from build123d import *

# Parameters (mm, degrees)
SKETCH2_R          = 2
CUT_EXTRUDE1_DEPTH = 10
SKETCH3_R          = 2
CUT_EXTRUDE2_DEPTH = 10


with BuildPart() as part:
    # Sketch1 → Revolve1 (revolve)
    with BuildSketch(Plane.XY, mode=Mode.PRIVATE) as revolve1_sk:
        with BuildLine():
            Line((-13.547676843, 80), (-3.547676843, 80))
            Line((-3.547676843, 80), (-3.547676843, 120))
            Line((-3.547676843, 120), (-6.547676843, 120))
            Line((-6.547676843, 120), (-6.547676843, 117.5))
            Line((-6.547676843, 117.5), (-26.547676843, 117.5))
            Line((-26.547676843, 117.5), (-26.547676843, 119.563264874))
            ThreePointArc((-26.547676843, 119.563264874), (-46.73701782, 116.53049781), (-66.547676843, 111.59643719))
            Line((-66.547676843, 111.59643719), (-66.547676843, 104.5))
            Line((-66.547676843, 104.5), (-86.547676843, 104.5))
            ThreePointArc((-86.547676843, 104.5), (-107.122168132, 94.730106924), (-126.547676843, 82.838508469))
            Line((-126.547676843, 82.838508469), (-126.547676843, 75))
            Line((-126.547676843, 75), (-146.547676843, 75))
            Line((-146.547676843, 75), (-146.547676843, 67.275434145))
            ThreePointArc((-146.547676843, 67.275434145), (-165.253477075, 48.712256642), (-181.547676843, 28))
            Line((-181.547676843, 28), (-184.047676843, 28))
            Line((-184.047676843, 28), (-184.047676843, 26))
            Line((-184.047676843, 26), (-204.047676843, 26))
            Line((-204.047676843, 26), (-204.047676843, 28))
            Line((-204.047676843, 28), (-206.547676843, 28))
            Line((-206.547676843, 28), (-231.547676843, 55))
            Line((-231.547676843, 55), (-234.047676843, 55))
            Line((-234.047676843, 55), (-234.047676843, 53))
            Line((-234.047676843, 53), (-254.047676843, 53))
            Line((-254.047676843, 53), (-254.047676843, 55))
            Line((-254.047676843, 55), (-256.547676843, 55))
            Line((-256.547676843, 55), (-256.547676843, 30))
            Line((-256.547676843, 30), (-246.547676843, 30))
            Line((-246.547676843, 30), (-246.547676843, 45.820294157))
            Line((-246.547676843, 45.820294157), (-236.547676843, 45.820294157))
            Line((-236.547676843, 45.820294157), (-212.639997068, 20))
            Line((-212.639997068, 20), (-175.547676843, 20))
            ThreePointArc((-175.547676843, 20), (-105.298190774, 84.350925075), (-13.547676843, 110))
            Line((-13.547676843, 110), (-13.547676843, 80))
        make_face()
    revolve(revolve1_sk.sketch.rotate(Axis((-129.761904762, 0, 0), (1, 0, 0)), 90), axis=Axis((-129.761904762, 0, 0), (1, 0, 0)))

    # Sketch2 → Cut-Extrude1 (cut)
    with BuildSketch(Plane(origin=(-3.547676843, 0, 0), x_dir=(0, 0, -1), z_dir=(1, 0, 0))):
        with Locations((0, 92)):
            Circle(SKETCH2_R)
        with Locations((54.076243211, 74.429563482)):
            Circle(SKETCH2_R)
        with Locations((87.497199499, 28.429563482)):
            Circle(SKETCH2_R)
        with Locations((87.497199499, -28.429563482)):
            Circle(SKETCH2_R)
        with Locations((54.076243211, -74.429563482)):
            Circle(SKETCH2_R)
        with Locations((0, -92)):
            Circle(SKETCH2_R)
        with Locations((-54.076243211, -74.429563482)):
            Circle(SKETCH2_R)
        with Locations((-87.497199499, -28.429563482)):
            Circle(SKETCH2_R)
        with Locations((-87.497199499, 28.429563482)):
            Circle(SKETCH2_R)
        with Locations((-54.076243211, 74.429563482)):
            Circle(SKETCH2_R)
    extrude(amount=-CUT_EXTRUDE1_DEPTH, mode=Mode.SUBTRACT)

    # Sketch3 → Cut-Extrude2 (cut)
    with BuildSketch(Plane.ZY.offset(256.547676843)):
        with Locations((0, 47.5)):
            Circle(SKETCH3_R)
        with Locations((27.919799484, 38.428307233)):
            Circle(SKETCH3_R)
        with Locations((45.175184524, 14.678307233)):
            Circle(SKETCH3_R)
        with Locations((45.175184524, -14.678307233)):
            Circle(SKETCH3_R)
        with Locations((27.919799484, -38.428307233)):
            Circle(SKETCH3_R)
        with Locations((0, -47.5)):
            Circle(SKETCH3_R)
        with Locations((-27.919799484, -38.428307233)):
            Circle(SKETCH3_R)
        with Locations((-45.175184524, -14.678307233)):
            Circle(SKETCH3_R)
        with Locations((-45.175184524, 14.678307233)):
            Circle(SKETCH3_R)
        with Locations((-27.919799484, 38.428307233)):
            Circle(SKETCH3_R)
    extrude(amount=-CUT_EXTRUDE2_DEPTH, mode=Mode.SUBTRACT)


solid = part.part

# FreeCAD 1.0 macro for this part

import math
import FreeCAD as App
import Part
import Sketcher

doc = App.newDocument("Part")
body = doc.addObject("PartDesign::Body", "Body")

sketch1 = body.newObject("Sketcher::SketchObject", "Sketch")
sketch1.AttachmentSupport = (doc.getObject("XY_Plane"), [""])
sketch1.MapMode = "FlatFace"
sketch1.addGeometry(Part.LineSegment(App.Vector(-13.5, 80, 0), App.Vector(-3.5, 80, 0)), False)
sketch1.addGeometry(Part.LineSegment(App.Vector(-3.5, 80, 0), App.Vector(-3.5, 120, 0)), False)
sketch1.addGeometry(Part.LineSegment(App.Vector(-3.5, 120, 0), App.Vector(-6.5, 120, 0)), False)
sketch1.addGeometry(Part.LineSegment(App.Vector(-6.5, 120, 0), App.Vector(-6.5, 117.5, 0)), False)
sketch1.addGeometry(Part.LineSegment(App.Vector(-6.5, 117.5, 0), App.Vector(-26.5, 117.5, 0)), False)
sketch1.addGeometry(Part.LineSegment(App.Vector(-26.5, 117.5, 0), App.Vector(-26.5, 119.6, 0)), False)
sketch1.addGeometry(Part.ArcOfCircle(Part.Circle(App.Vector(-4.7, -94.3, 0), App.Vector(0, 0, 1), 215), math.radians(95.82), math.radians(106.71)), False)
sketch1.addGeometry(Part.LineSegment(App.Vector(-66.5, 111.6, 0), App.Vector(-66.5, 104.5, 0)), False)
sketch1.addGeometry(Part.LineSegment(App.Vector(-66.5, 104.5, 0), App.Vector(-86.5, 104.5, 0)), False)
sketch1.addGeometry(Part.ArcOfCircle(Part.Circle(App.Vector(-4.7, -94.3, 0), App.Vector(0, 0, 1), 215), math.radians(112.36), math.radians(124.51)), False)
sketch1.addGeometry(Part.LineSegment(App.Vector(-126.5, 82.8, 0), App.Vector(-126.5, 75, 0)), False)
sketch1.addGeometry(Part.LineSegment(App.Vector(-126.5, 75, 0), App.Vector(-146.5, 75, 0)), False)
sketch1.addGeometry(Part.LineSegment(App.Vector(-146.5, 75, 0), App.Vector(-146.5, 67.3, 0)), False)
sketch1.addGeometry(Part.ArcOfCircle(Part.Circle(App.Vector(-4.7, -94.3, 0), App.Vector(0, 0, 1), 215), math.radians(131.27), math.radians(145.32)), False)
sketch1.addGeometry(Part.LineSegment(App.Vector(-181.5, 28, 0), App.Vector(-184, 28, 0)), False)
sketch1.addGeometry(Part.LineSegment(App.Vector(-184, 28, 0), App.Vector(-184, 26, 0)), False)
sketch1.addGeometry(Part.LineSegment(App.Vector(-184, 26, 0), App.Vector(-204, 26, 0)), False)
sketch1.addGeometry(Part.LineSegment(App.Vector(-204, 26, 0), App.Vector(-204, 28, 0)), False)
sketch1.addGeometry(Part.LineSegment(App.Vector(-204, 28, 0), App.Vector(-206.5, 28, 0)), False)
sketch1.addGeometry(Part.LineSegment(App.Vector(-206.5, 28, 0), App.Vector(-231.5, 55, 0)), False)
sketch1.addGeometry(Part.LineSegment(App.Vector(-231.5, 55, 0), App.Vector(-234, 55, 0)), False)
sketch1.addGeometry(Part.LineSegment(App.Vector(-234, 55, 0), App.Vector(-234, 53, 0)), False)
sketch1.addGeometry(Part.LineSegment(App.Vector(-234, 53, 0), App.Vector(-254, 53, 0)), False)
sketch1.addGeometry(Part.LineSegment(App.Vector(-254, 53, 0), App.Vector(-254, 55, 0)), False)
sketch1.addGeometry(Part.LineSegment(App.Vector(-254, 55, 0), App.Vector(-256.5, 55, 0)), False)
sketch1.addGeometry(Part.LineSegment(App.Vector(-256.5, 55, 0), App.Vector(-256.5, 30, 0)), False)
sketch1.addGeometry(Part.LineSegment(App.Vector(-256.5, 30, 0), App.Vector(-246.5, 30, 0)), False)
sketch1.addGeometry(Part.LineSegment(App.Vector(-246.5, 30, 0), App.Vector(-246.5, 45.8, 0)), False)
sketch1.addGeometry(Part.LineSegment(App.Vector(-246.5, 45.8, 0), App.Vector(-236.5, 45.8, 0)), False)
sketch1.addGeometry(Part.LineSegment(App.Vector(-236.5, 45.8, 0), App.Vector(-212.6, 20, 0)), False)
sketch1.addGeometry(Part.LineSegment(App.Vector(-212.6, 20, 0), App.Vector(-175.5, 20, 0)), False)
sketch1.addGeometry(Part.ArcOfCircle(Part.Circle(App.Vector(-5.7, -94.9, 0), App.Vector(0, 0, 1), 205), math.radians(92), math.radians(146)), False)
sketch1.addGeometry(Part.LineSegment(App.Vector(-13.5, 110, 0), App.Vector(-13.5, 80, 0)), False)
sketch1.addConstraint(Sketcher.Constraint("Coincident", 0, 2, 1, 1))
sketch1.addConstraint(Sketcher.Constraint("Coincident", 1, 2, 2, 1))
sketch1.addConstraint(Sketcher.Constraint("Coincident", 2, 2, 3, 1))
sketch1.addConstraint(Sketcher.Constraint("Coincident", 3, 2, 4, 1))
sketch1.addConstraint(Sketcher.Constraint("Coincident", 4, 2, 5, 1))
sketch1.addConstraint(Sketcher.Constraint("Coincident", 5, 2, 6, 1))
sketch1.addConstraint(Sketcher.Constraint("Coincident", 6, 2, 7, 1))
sketch1.addConstraint(Sketcher.Constraint("Coincident", 7, 2, 8, 1))
sketch1.addConstraint(Sketcher.Constraint("Coincident", 8, 2, 9, 1))
sketch1.addConstraint(Sketcher.Constraint("Coincident", 9, 2, 10, 1))
sketch1.addConstraint(Sketcher.Constraint("Coincident", 10, 2, 11, 1))
sketch1.addConstraint(Sketcher.Constraint("Coincident", 11, 2, 12, 1))
sketch1.addConstraint(Sketcher.Constraint("Coincident", 12, 2, 13, 1))
sketch1.addConstraint(Sketcher.Constraint("Coincident", 13, 2, 14, 1))
sketch1.addConstraint(Sketcher.Constraint("Coincident", 14, 2, 15, 1))
sketch1.addConstraint(Sketcher.Constraint("Coincident", 15, 2, 16, 1))
sketch1.addConstraint(Sketcher.Constraint("Coincident", 16, 2, 17, 1))
sketch1.addConstraint(Sketcher.Constraint("Coincident", 17, 2, 18, 1))
sketch1.addConstraint(Sketcher.Constraint("Coincident", 18, 2, 19, 1))
sketch1.addConstraint(Sketcher.Constraint("Coincident", 19, 2, 20, 1))
sketch1.addConstraint(Sketcher.Constraint("Coincident", 20, 2, 21, 1))
sketch1.addConstraint(Sketcher.Constraint("Coincident", 21, 2, 22, 1))
sketch1.addConstraint(Sketcher.Constraint("Coincident", 22, 2, 23, 1))
sketch1.addConstraint(Sketcher.Constraint("Coincident", 23, 2, 24, 1))
sketch1.addConstraint(Sketcher.Constraint("Coincident", 24, 2, 25, 1))
sketch1.addConstraint(Sketcher.Constraint("Coincident", 25, 2, 26, 1))
sketch1.addConstraint(Sketcher.Constraint("Coincident", 26, 2, 27, 1))
sketch1.addConstraint(Sketcher.Constraint("Coincident", 27, 2, 28, 1))
sketch1.addConstraint(Sketcher.Constraint("Coincident", 28, 2, 29, 1))
sketch1.addConstraint(Sketcher.Constraint("Coincident", 29, 2, 30, 1))
sketch1.addConstraint(Sketcher.Constraint("Coincident", 30, 2, 31, 2))
sketch1.addConstraint(Sketcher.Constraint("Coincident", 31, 1, 32, 1))
sketch1.addConstraint(Sketcher.Constraint("Coincident", 32, 2, 0, 1))
sketch1.addConstraint(Sketcher.Constraint("Horizontal", 0))
sketch1.addConstraint(Sketcher.Constraint("Vertical", 1))
sketch1.addConstraint(Sketcher.Constraint("Horizontal", 2))
sketch1.addConstraint(Sketcher.Constraint("Vertical", 3))
sketch1.addConstraint(Sketcher.Constraint("Horizontal", 4))
sketch1.addConstraint(Sketcher.Constraint("Vertical", 5))
sketch1.addConstraint(Sketcher.Constraint("Vertical", 7))
sketch1.addConstraint(Sketcher.Constraint("Horizontal", 8))
sketch1.addConstraint(Sketcher.Constraint("Vertical", 10))
sketch1.addConstraint(Sketcher.Constraint("Horizontal", 11))
sketch1.addConstraint(Sketcher.Constraint("Vertical", 12))
sketch1.addConstraint(Sketcher.Constraint("Horizontal", 14))
sketch1.addConstraint(Sketcher.Constraint("Vertical", 15))
sketch1.addConstraint(Sketcher.Constraint("Horizontal", 16))
sketch1.addConstraint(Sketcher.Constraint("Vertical", 17))
sketch1.addConstraint(Sketcher.Constraint("Horizontal", 18))
sketch1.addConstraint(Sketcher.Constraint("Horizontal", 20))
sketch1.addConstraint(Sketcher.Constraint("Vertical", 21))
sketch1.addConstraint(Sketcher.Constraint("Horizontal", 22))
sketch1.addConstraint(Sketcher.Constraint("Vertical", 23))
sketch1.addConstraint(Sketcher.Constraint("Horizontal", 24))
sketch1.addConstraint(Sketcher.Constraint("Vertical", 25))
sketch1.addConstraint(Sketcher.Constraint("Horizontal", 26))
sketch1.addConstraint(Sketcher.Constraint("Vertical", 27))
sketch1.addConstraint(Sketcher.Constraint("Horizontal", 28))
sketch1.addConstraint(Sketcher.Constraint("Horizontal", 30))
sketch1.addConstraint(Sketcher.Constraint("Vertical", 32))
sketch1.addConstraint(Sketcher.Constraint("Coincident", 9, 3, 6, 3))
sketch1.addConstraint(Sketcher.Constraint("Coincident", 13, 3, 6, 3))
sketch1.addConstraint(Sketcher.Constraint("Equal", 6, 9))
sketch1.addConstraint(Sketcher.Constraint("Equal", 9, 13))
sketch1.addConstraint(Sketcher.Constraint("Parallel", 19, 29))
sketch1.addConstraint(Sketcher.Constraint("Horizontal", 14, 2, 17, 2))
sketch1.addConstraint(Sketcher.Constraint("Horizontal", 20, 2, 23, 2))
sketch1.addConstraint(Sketcher.Constraint("Equal", 4, 8))
sketch1.addConstraint(Sketcher.Constraint("Equal", 8, 11))
sketch1.addConstraint(Sketcher.Constraint("Equal", 11, 16))
sketch1.addConstraint(Sketcher.Constraint("Equal", 14, 18))
sketch1.addConstraint(Sketcher.Constraint("Equal", 18, 20))
sketch1.addConstraint(Sketcher.Constraint("Equal", 16, 22))
sketch1.addConstraint(Sketcher.Constraint("Equal", 20, 24))
sketch1.addConstraint(Sketcher.Constraint("Equal", 0, 26))
sketch1.addConstraint(Sketcher.Constraint("Equal", 26, 28))
sketch1.addConstraint(Sketcher.Constraint("Equal", 24, 3))
sketch1.addConstraint(Sketcher.Constraint("Equal", 17, 21))
sketch1.addConstraint(Sketcher.Constraint("Radius", 6, 215.0))
sketch1.addConstraint(Sketcher.Constraint("Radius", 31, 205.0))
sketch1.addConstraint(Sketcher.Constraint("DistanceX", 0, 1, 0, 2, 10.0))
sketch1.addConstraint(Sketcher.Constraint("DistanceX", 2, 2, 2, 1, 3.0))
sketch1.addConstraint(Sketcher.Constraint("DistanceX", 4, 2, 4, 1, 20.0))
sketch1.addConstraint(Sketcher.Constraint("DistanceY", 1, 1, 1, 2, 40.0))
sketch1.addConstraint(Sketcher.Constraint("DistanceY", 15, 2, 15, 1, 2.0))
sketch1.addConstraint(Sketcher.Constraint("DistanceY", 25, 2, 25, 1, 25.0))
sketch1.addConstraint(Sketcher.Constraint("DistanceY", 32, 2, 32, 1, 30.0))
sketch1.addConstraint(Sketcher.Constraint("DistanceX", 14, 2, 14, 1, 2.5))
sketch1.addConstraint(Sketcher.Constraint("DistanceY", -1, 1, 0, 2, 80.0))
sketch1.addConstraint(Sketcher.Constraint("DistanceY", -1, 1, 10, 2, 75.0))
sketch1.addConstraint(Sketcher.Constraint("DistanceY", -1, 1, 14, 2, 28.0))
sketch1.addConstraint(Sketcher.Constraint("DistanceY", -1, 1, 19, 2, 55.0))
sketch1.addConstraint(Sketcher.Constraint("DistanceY", -1, 1, 29, 2, 20.0))
sketch1.addConstraint(Sketcher.Constraint("DistanceX", 6, 2, 4, 2, 40.0))
sketch1.addConstraint(Sketcher.Constraint("DistanceY", 7, 2, 4, 2, 13.0))
sketch1.addConstraint(Sketcher.Constraint("DistanceX", 9, 2, 8, 2, 40.0))
sketch1.addConstraint(Sketcher.Constraint("DistanceX", 13, 2, 12, 2, 35.0))
sketch1.addConstraint(Sketcher.Constraint("DistanceX", 19, 2, 18, 2, 25.0))
sketch1.addConstraint(Sketcher.Constraint("DistanceX", 13, 2, 30, 2, 6.0))
sketch1.addConstraint(Sketcher.Constraint("DistanceX", 30, 1, 30, 2, 37.09232))
sketch1.addConstraint(Sketcher.Constraint("DistanceX", 31, 3, -1, 1, 5.74139))
revolution = body.newObject("PartDesign::Revolution", "Revolution")
revolution.Profile = sketch1
revolution.ReferenceAxis = (sketch1, ["H_Axis"])
revolution.Angle = 360

sketch2 = body.newObject("Sketcher::SketchObject", "Sketch001")
sketch2.AttachmentSupport = (doc.getObject("YZ_Plane"), [""])
sketch2.MapMode = "FlatFace"
sketch2.AttachmentOffset = App.Placement(App.Vector(0, 0, -3.547677), App.Rotation())
sketch2.addGeometry(Part.Circle(App.Vector(92, 0, 0), App.Vector(0, 0, 1), 2), False)
sketch2.addGeometry(Part.Circle(App.Vector(74.4, -54.1, 0), App.Vector(0, 0, 1), 2), False)
sketch2.addGeometry(Part.Circle(App.Vector(28.4, -87.5, 0), App.Vector(0, 0, 1), 2), False)
sketch2.addGeometry(Part.Circle(App.Vector(-28.4, -87.5, 0), App.Vector(0, 0, 1), 2), False)
sketch2.addGeometry(Part.Circle(App.Vector(-74.4, -54.1, 0), App.Vector(0, 0, 1), 2), False)
sketch2.addGeometry(Part.Circle(App.Vector(-92, 0, 0), App.Vector(0, 0, 1), 2), False)
sketch2.addGeometry(Part.Circle(App.Vector(-74.4, 54.1, 0), App.Vector(0, 0, 1), 2), False)
sketch2.addGeometry(Part.Circle(App.Vector(-28.4, 87.5, 0), App.Vector(0, 0, 1), 2), False)
sketch2.addGeometry(Part.Circle(App.Vector(28.4, 87.5, 0), App.Vector(0, 0, 1), 2), False)
sketch2.addGeometry(Part.Circle(App.Vector(74.4, 54.1, 0), App.Vector(0, 0, 1), 2), False)
sketch2.addConstraint(Sketcher.Constraint("Equal", 0, 1))
sketch2.addConstraint(Sketcher.Constraint("Equal", 1, 2))
sketch2.addConstraint(Sketcher.Constraint("Equal", 2, 3))
sketch2.addConstraint(Sketcher.Constraint("Equal", 3, 4))
sketch2.addConstraint(Sketcher.Constraint("Equal", 4, 5))
sketch2.addConstraint(Sketcher.Constraint("Equal", 5, 6))
sketch2.addConstraint(Sketcher.Constraint("Equal", 6, 7))
sketch2.addConstraint(Sketcher.Constraint("Equal", 7, 8))
sketch2.addConstraint(Sketcher.Constraint("Equal", 8, 9))
sketch2.addConstraint(Sketcher.Constraint("Symmetric", 0, 3, 5, 3, -1, 1))
sketch2.addConstraint(Sketcher.Constraint("Symmetric", 1, 3, 6, 3, -1, 1))
sketch2.addConstraint(Sketcher.Constraint("Symmetric", 2, 3, 7, 3, -1, 1))
sketch2.addConstraint(Sketcher.Constraint("Symmetric", 3, 3, 8, 3, -1, 1))
sketch2.addConstraint(Sketcher.Constraint("Symmetric", 4, 3, 9, 3, -1, 1))
sketch2.addConstraint(Sketcher.Constraint("Symmetric", 2, 3, 3, 3, -2))
sketch2.addConstraint(Sketcher.Constraint("Symmetric", 1, 3, 4, 3, -2))
sketch2.addConstraint(Sketcher.Constraint("PointOnObject", 0, 3, -1))
sketch2.addConstraint(Sketcher.Constraint("Diameter", 0, 4.0))
sketch2.addConstraint(Sketcher.Constraint("DistanceX", -1, 1, 0, 3, 92.0))
sketch2.addConstraint(Sketcher.Constraint("DistanceX", 2, 3, 1, 3, 46.0))
sketch2.addConstraint(Sketcher.Constraint("DistanceY", 2, 3, -1, 1, 87.497199))
sketch2.addConstraint(Sketcher.Constraint("DistanceX", -1, 1, 1, 3, 74.429563))
sketch2.addConstraint(Sketcher.Constraint("DistanceY", 1, 3, -1, 1, 54.076243))
pocket1 = body.newObject("PartDesign::Pocket", "Pocket")
pocket1.Profile = sketch2
pocket1.Length = 10

sketch3 = body.newObject("Sketcher::SketchObject", "Sketch002")
sketch3.AttachmentSupport = (doc.getObject("YZ_Plane"), [""])
sketch3.MapMode = "FlatFace"
sketch3.AttachmentOffset = App.Placement(App.Vector(0, 0, -256.547677), App.Rotation())
sketch3.addGeometry(Part.Circle(App.Vector(47.5, 0, 0), App.Vector(0, 0, 1), 2), False)
sketch3.addGeometry(Part.Circle(App.Vector(38.4, 27.9, 0), App.Vector(0, 0, 1), 2), False)
sketch3.addGeometry(Part.Circle(App.Vector(14.7, 45.2, 0), App.Vector(0, 0, 1), 2), False)
sketch3.addGeometry(Part.Circle(App.Vector(-14.7, 45.2, 0), App.Vector(0, 0, 1), 2), False)
sketch3.addGeometry(Part.Circle(App.Vector(-38.4, 27.9, 0), App.Vector(0, 0, 1), 2), False)
sketch3.addGeometry(Part.Circle(App.Vector(-47.5, 0, 0), App.Vector(0, 0, 1), 2), False)
sketch3.addGeometry(Part.Circle(App.Vector(-38.4, -27.9, 0), App.Vector(0, 0, 1), 2), False)
sketch3.addGeometry(Part.Circle(App.Vector(-14.7, -45.2, 0), App.Vector(0, 0, 1), 2), False)
sketch3.addGeometry(Part.Circle(App.Vector(14.7, -45.2, 0), App.Vector(0, 0, 1), 2), False)
sketch3.addGeometry(Part.Circle(App.Vector(38.4, -27.9, 0), App.Vector(0, 0, 1), 2), False)
sketch3.addConstraint(Sketcher.Constraint("Equal", 0, 1))
sketch3.addConstraint(Sketcher.Constraint("Equal", 1, 2))
sketch3.addConstraint(Sketcher.Constraint("Equal", 2, 3))
sketch3.addConstraint(Sketcher.Constraint("Equal", 3, 4))
sketch3.addConstraint(Sketcher.Constraint("Equal", 4, 5))
sketch3.addConstraint(Sketcher.Constraint("Equal", 5, 6))
sketch3.addConstraint(Sketcher.Constraint("Equal", 6, 7))
sketch3.addConstraint(Sketcher.Constraint("Equal", 7, 8))
sketch3.addConstraint(Sketcher.Constraint("Equal", 8, 9))
sketch3.addConstraint(Sketcher.Constraint("Symmetric", 0, 3, 5, 3, -1, 1))
sketch3.addConstraint(Sketcher.Constraint("Symmetric", 1, 3, 6, 3, -1, 1))
sketch3.addConstraint(Sketcher.Constraint("Symmetric", 2, 3, 7, 3, -1, 1))
sketch3.addConstraint(Sketcher.Constraint("Symmetric", 3, 3, 8, 3, -1, 1))
sketch3.addConstraint(Sketcher.Constraint("Symmetric", 4, 3, 9, 3, -1, 1))
sketch3.addConstraint(Sketcher.Constraint("Symmetric", 2, 3, 3, 3, -2))
sketch3.addConstraint(Sketcher.Constraint("Symmetric", 1, 3, 4, 3, -2))
sketch3.addConstraint(Sketcher.Constraint("PointOnObject", 0, 3, -1))
sketch3.addConstraint(Sketcher.Constraint("Diameter", 0, 4.0))
sketch3.addConstraint(Sketcher.Constraint("DistanceX", 5, 3, 0, 3, 95.0))
sketch3.addConstraint(Sketcher.Constraint("DistanceX", 2, 3, 1, 3, 23.75))
sketch3.addConstraint(Sketcher.Constraint("DistanceY", -1, 1, 1, 3, 27.919799))
sketch3.addConstraint(Sketcher.Constraint("DistanceY", 7, 3, 3, 3, 90.350369))
sketch3.addConstraint(Sketcher.Constraint("DistanceX", -1, 1, 1, 3, 38.428307))
pocket2 = body.newObject("PartDesign::Pocket", "Pocket001")
pocket2.Profile = sketch3
pocket2.Length = 10
pocket2.Reversed = True

doc.recompute()
